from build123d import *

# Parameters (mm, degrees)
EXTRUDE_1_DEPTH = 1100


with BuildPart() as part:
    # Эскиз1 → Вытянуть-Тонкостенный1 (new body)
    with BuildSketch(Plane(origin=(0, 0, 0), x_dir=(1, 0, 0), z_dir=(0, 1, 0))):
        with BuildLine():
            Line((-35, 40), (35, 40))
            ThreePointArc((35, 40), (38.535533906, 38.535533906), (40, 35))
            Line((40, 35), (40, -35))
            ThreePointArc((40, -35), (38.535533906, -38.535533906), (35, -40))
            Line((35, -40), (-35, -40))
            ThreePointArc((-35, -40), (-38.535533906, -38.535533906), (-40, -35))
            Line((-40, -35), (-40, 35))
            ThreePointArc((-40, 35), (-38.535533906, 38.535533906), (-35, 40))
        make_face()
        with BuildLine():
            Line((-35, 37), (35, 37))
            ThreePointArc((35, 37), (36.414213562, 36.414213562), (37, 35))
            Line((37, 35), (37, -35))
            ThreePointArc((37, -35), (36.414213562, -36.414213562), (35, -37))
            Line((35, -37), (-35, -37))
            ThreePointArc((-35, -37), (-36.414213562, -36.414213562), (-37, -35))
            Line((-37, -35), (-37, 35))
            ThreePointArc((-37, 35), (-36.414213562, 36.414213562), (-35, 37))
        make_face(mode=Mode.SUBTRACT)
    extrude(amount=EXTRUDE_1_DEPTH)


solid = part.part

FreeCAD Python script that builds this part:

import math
import FreeCAD as App
import Part
import Sketcher
from FreeCAD import Vector
Q = App.Units.Quantity

doc = App.newDocument("Part")
body = doc.addObject("PartDesign::Body", "Body")

# Sketch on XZ plane
sketch1 = doc.addObject("Sketcher::SketchObject", "Sketch")
body.addObject(sketch1)
sketch1.AttachmentSupport = (doc.XZ_Plane, [""])
sketch1.MapMode = "FlatFace"
sketch1.addGeometry(Part.LineSegment(Vector(35, -40, 0), Vector(-35, -40, 0)), False)
sketch1.addGeometry(Part.ArcOfCircle(Part.Circle(Vector(-35, -35, 0), Vector(0, 0, 1), 5), math.radians(180), math.radians(270)), False)
sketch1.addGeometry(Part.LineSegment(Vector(-40, -35, 0), Vector(-40, 35, 0)), False)
sketch1.addGeometry(Part.ArcOfCircle(Part.Circle(Vector(-35, 35, 0), Vector(0, 0, 1), 5), math.radians(90), math.radians(180)), False)
sketch1.addGeometry(Part.LineSegment(Vector(-35, 40, 0), Vector(35, 40, 0)), False)
sketch1.addGeometry(Part.ArcOfCircle(Part.Circle(Vector(35, 35, 0), Vector(0, 0, 1), 5), math.radians(0), math.radians(90)), False)
sketch1.addGeometry(Part.LineSegment(Vector(40, 35, 0), Vector(40, -35, 0)), False)
sketch1.addGeometry(Part.ArcOfCircle(Part.Circle(Vector(35, -35, 0), Vector(0, 0, 1), 5), math.radians(-90), math.radians(0)), False)
sketch1.addGeometry(Part.LineSegment(Vector(-35, -37, 0), Vector(35, -37, 0)), False)
sketch1.addGeometry(Part.ArcOfCircle(Part.Circle(Vector(35, -35, 0), Vector(0, 0, 1), 2), math.radians(-90), math.radians(0)), False)
sketch1.addGeometry(Part.LineSegment(Vector(37, -35, 0), Vector(37, 35, 0)), False)
sketch1.addGeometry(Part.ArcOfCircle(Part.Circle(Vector(35, 35, 0), Vector(0, 0, 1), 2), math.radians(0), math.radians(90)), False)
sketch1.addGeometry(Part.LineSegment(Vector(35, 37, 0), Vector(-35, 37, 0)), False)
sketch1.addGeometry(Part.ArcOfCircle(Part.Circle(Vector(-35, 35, 0), Vector(0, 0, 1), 2), math.radians(90), math.radians(180)), False)
sketch1.addGeometry(Part.LineSegment(Vector(-37, 35, 0), Vector(-37, -35, 0)), False)
sketch1.addGeometry(Part.ArcOfCircle(Part.Circle(Vector(-35, -35, 0), Vector(0, 0, 1), 2), math.radians(-180), math.radians(-90)), False)
sketch1.addConstraint(Sketcher.Constraint("Tangent", 0, 2, 1, 2))
sketch1.addConstraint(Sketcher.Constraint("Tangent", 1, 1, 2, 1))
sketch1.addConstraint(Sketcher.Constraint("Tangent", 2, 2, 3, 2))
sketch1.addConstraint(Sketcher.Constraint("Tangent", 3, 1, 4, 1))
sketch1.addConstraint(Sketcher.Constraint("Tangent", 4, 2, 5, 2))
sketch1.addConstraint(Sketcher.Constraint("Tangent", 5, 1, 6, 1))
sketch1.addConstraint(Sketcher.Constraint("Tangent", 6, 2, 7, 2))
sketch1.addConstraint(Sketcher.Constraint("Tangent", 7, 1, 0, 1))
sketch1.addConstraint(Sketcher.Constraint("Tangent", 8, 2, 9, 1))
sketch1.addConstraint(Sketcher.Constraint("Tangent", 9, 2, 10, 1))
sketch1.addConstraint(Sketcher.Constraint("Tangent", 10, 2, 11, 1))
sketch1.addConstraint(Sketcher.Constraint("Tangent", 11, 2, 12, 1))
sketch1.addConstraint(Sketcher.Constraint("Tangent", 12, 2, 13, 1))
sketch1.addConstraint(Sketcher.Constraint("Tangent", 13, 2, 14, 1))
sketch1.addConstraint(Sketcher.Constraint("Tangent", 14, 2, 15, 1))
sketch1.addConstraint(Sketcher.Constraint("Tangent", 15, 2, 8, 1))
sketch1.addConstraint(Sketcher.Constraint("Horizontal", 0))
sketch1.addConstraint(Sketcher.Constraint("Vertical", 2))
sketch1.addConstraint(Sketcher.Constraint("Horizontal", 4))
sketch1.addConstraint(Sketcher.Constraint("Vertical", 6))
sketch1.addConstraint(Sketcher.Constraint("Horizontal", 8))
sketch1.addConstraint(Sketcher.Constraint("Vertical", 10))
sketch1.addConstraint(Sketcher.Constraint("Horizontal", 12))
sketch1.addConstraint(Sketcher.Constraint("Vertical", 14))
sketch1.addConstraint(Sketcher.Constraint("Coincident", 9, 3, 7, 3))
sketch1.addConstraint(Sketcher.Constraint("Coincident", 11, 3, 5, 3))
sketch1.addConstraint(Sketcher.Constraint("Coincident", 13, 3, 3, 3))
sketch1.addConstraint(Sketcher.Constraint("Equal", 1, 3))
sketch1.addConstraint(Sketcher.Constraint("Equal", 3, 5))
sketch1.addConstraint(Sketcher.Constraint("Equal", 5, 7))
sketch1.addConstraint(Sketcher.Constraint("Equal", 13, 15))
sketch1.addConstraint(Sketcher.Constraint("Symmetric", 1, 3, 5, 3, -1, 1))
sketch1.addConstraint(Sketcher.Constraint("Equal", 12, 2))
sketch1.addConstraint(Sketcher.Constraint("Radius", 1, Q("5 mm")))
sketch1.addConstraint(Sketcher.Constraint("Radius", 9, Q("2 mm")))
sketch1.addConstraint(Sketcher.Constraint("DistanceX", 0, 2, 0, 1, Q("70 mm")))
pad1 = doc.addObject("PartDesign::Pad", "Pad")
body.addObject(pad1)
pad1.Profile = sketch1
pad1.Length = 1100
pad1.Reversed = True

doc.recompute()
